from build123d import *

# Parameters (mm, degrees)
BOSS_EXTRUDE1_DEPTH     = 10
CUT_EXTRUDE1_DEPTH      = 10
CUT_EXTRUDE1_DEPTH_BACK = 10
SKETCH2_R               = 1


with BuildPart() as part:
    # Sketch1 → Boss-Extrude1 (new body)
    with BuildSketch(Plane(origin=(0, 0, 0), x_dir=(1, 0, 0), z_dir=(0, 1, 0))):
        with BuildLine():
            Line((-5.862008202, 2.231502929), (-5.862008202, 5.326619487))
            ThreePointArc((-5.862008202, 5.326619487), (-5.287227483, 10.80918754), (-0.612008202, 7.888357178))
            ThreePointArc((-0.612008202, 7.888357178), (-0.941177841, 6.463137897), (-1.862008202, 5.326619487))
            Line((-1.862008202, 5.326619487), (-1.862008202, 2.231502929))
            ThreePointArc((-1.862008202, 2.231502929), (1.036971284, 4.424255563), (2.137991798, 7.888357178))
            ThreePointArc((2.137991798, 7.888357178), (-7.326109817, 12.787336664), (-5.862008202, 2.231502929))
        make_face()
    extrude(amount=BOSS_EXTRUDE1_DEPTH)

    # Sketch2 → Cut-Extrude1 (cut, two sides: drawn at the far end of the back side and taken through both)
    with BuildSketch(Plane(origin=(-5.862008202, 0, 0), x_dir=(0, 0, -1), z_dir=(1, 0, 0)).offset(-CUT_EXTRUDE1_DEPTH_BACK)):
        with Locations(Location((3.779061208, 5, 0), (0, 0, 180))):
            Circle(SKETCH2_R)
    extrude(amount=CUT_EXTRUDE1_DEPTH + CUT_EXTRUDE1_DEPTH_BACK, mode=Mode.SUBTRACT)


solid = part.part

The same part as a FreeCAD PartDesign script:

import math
import FreeCAD as App
import Part
import Sketcher
Q = App.Units.Quantity

doc = App.newDocument("Part")
params = doc.addObject("Spreadsheet::Sheet", "Params")
for row, (alias, value) in enumerate([
    ("sketch1_radius", "6 mm"),
    ("sketch1_radius2", "3.25 mm"),
    ("pad1_length", "10 mm"),
    ("sketch2_diameter", "2 mm"),
], start=1):
    params.set(f"A{row}", alias)
    params.set(f"B{row}", "=" + value)
    params.setAlias(f"B{row}", alias)

body = doc.addObject("PartDesign::Body", "Body")

# Sketch on XZ plane
sketch1 = body.newObject("Sketcher::SketchObject", "Sketch")
sketch1.AttachmentSupport = (doc.getObject("XZ_Plane"), [""])
sketch1.MapMode = "FlatFace"
sketch1.addGeometry([
    Part.LineSegment(App.Vector(-5.862008, -2.231503, 0), App.Vector(-5.862008, -5.326619, 0)),  # 0
    Part.ArcOfCircle(Part.Circle(App.Vector(-3.862008, -7.888357, 0), App.Vector(0, 0, 1), 3.25), math.radians(127.979872), math.radians(360)),  # 1
    Part.ArcOfCircle(Part.Circle(App.Vector(-3.862008, -7.888357, 0), App.Vector(0, 0, 1), 3.25), math.radians(0), math.radians(52.020128)),  # 2
    Part.LineSegment(App.Vector(-1.862008, -5.326619, 0), App.Vector(-1.862008, -2.231503, 0)),  # 3
    Part.ArcOfCircle(Part.Circle(App.Vector(-3.862008, -7.888357, 0), App.Vector(0, 0, 1), 6), math.radians(0), math.radians(70.528779)),  # 4
    Part.ArcOfCircle(Part.Circle(App.Vector(-3.862008, -7.888357, 0), App.Vector(0, 0, 1), 6), math.radians(109.471221), math.radians(360)),  # 5
], False)
sketch1.addConstraint([
    Sketcher.Constraint("Coincident", 0, 2, 1, 1),
    Sketcher.Constraint("Tangent", 1, 2, 2, 1),
    Sketcher.Constraint("Coincident", 2, 2, 3, 1),
    Sketcher.Constraint("Coincident", 3, 2, 4, 2),
    Sketcher.Constraint("Tangent", 4, 1, 5, 2),
    Sketcher.Constraint("Coincident", 5, 1, 0, 1),
    Sketcher.Constraint("Vertical", 0),
    Sketcher.Constraint("Vertical", 3),
    Sketcher.Constraint("Coincident", 4, 3, 1, 3),
    Sketcher.Constraint("Equal", 1, 2),
    Sketcher.Constraint("Equal", 4, 5),
    Sketcher.Constraint("Horizontal", 5, 3, 1, 2),
    Sketcher.Constraint("Horizontal", 0, 2, 2, 2),
    Sketcher.Constraint("Horizontal", 1, 2, 4, 1),
    Sketcher.Constraint("Radius", 4, Q("6 mm")),
    Sketcher.Constraint("Radius", 1, Q("3.25 mm")),
    Sketcher.Constraint("DistanceX", 0, 2, 2, 3, Q("2 mm")),
    Sketcher.Constraint("DistanceX", 1, 3, -1, 1, Q("3.862008 mm")),
    Sketcher.Constraint("DistanceY", 0, 2, -1, 1, Q("5.326619 mm")),
])
sketch1.setExpression("Constraints[14]", "Params.sketch1_radius")
sketch1.setExpression("Constraints[15]", "Params.sketch1_radius2")
pad1 = body.newObject("PartDesign::Pad", "Pad")
pad1.Profile = sketch1
pad1.setExpression("Length", "Params.pad1_length")
pad1.Reversed = True

# Sketch on YZ plane
sketch2 = body.newObject("Sketcher::SketchObject", "Sketch001")
sketch2.AttachmentSupport = (doc.getObject("YZ_Plane"), [""])
sketch2.MapMode = "FlatFace"
sketch2.AttachmentOffset = App.Placement(App.Vector(0, 0, -5.862008), App.Rotation())
sketch2.addGeometry(Part.Circle(App.Vector(5, -3.779061, 0), App.Vector(0, 0, 1), 1), False)
sketch2.addConstraint([
    Sketcher.Constraint("Diameter", 0, Q("2 mm")),
    Sketcher.Constraint("DistanceX", -1, 1, 0, 3, Q("5 mm")),
    Sketcher.Constraint("DistanceY", 0, 3, -1, 1, Q("3.779061 mm")),
])
sketch2.setExpression("Constraints[0]", "Params.sketch2_diameter")
pocket1 = body.newObject("PartDesign::Pocket", "Pocket")
pocket1.Profile = sketch2
pocket1.Type = "ThroughAll"
pocket1.Midplane = True

doc.recompute()
